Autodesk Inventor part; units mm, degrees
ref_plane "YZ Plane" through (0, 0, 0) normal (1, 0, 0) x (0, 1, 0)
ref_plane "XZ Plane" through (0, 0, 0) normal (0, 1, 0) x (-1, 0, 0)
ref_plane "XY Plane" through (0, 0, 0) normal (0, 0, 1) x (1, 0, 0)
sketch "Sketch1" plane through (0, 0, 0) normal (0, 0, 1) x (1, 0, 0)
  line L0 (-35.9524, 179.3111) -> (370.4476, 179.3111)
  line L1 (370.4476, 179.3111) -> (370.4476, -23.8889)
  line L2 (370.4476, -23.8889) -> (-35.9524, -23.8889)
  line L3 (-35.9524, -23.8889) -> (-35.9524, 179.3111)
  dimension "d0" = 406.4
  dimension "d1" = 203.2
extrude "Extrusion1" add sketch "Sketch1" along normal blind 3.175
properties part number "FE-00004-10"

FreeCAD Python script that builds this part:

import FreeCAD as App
import Part
import Sketcher

V = App.Vector
Q = App.Units.Quantity


def add_polygon(sketch, points):
    """Adds a closed chain of lines whose ends are joined by coincident constraints."""
    first, n = sketch.GeometryCount, len(points)
    for a, b in zip(points, points[1:] + points[:1]):
        sketch.addGeometry(Part.LineSegment(App.Vector(*a, 0), App.Vector(*b, 0)), False)
    for i in range(n):
        sketch.addConstraint(Sketcher.Constraint("Coincident", first + i, 2, first + (i + 1) % n, 1))

doc = App.newDocument("Part")
body = doc.addObject("PartDesign::Body", "Body")

# Sketch on XY plane
sketch1 = body.newObject("Sketcher::SketchObject", "Sketch")
sketch1.AttachmentSupport = (doc.getObject("XY_Plane"), [""])
sketch1.MapMode = "FlatFace"
add_polygon(sketch1, [(370.4476, 179.3111), (-35.9524, 179.3111), (-35.9524, -23.8889), (370.4476, -23.8889)])  # lines 0-3
sketch1.addConstraint(Sketcher.Constraint("Horizontal", 0))
sketch1.addConstraint(Sketcher.Constraint("Vertical", 1))
sketch1.addConstraint(Sketcher.Constraint("Horizontal", 2))
sketch1.addConstraint(Sketcher.Constraint("Vertical", 3))
sketch1.addConstraint(Sketcher.Constraint("DistanceX", 0, 2, 0, 1, Q("16 in")))
sketch1.addConstraint(Sketcher.Constraint("DistanceY", 1, 2, 1, 1, Q("8 in")))
sketch1.addConstraint(Sketcher.Constraint("DistanceY", -1, 1, 0, 2, Q("7.0595 in")))
sketch1.addConstraint(Sketcher.Constraint("DistanceX", 0, 2, -1, 1, 35.9524))
pad1 = body.newObject("PartDesign::Pad", "Pad")
pad1.Profile = sketch1
pad1.Length = Q("0.125 in")

doc.recompute()
